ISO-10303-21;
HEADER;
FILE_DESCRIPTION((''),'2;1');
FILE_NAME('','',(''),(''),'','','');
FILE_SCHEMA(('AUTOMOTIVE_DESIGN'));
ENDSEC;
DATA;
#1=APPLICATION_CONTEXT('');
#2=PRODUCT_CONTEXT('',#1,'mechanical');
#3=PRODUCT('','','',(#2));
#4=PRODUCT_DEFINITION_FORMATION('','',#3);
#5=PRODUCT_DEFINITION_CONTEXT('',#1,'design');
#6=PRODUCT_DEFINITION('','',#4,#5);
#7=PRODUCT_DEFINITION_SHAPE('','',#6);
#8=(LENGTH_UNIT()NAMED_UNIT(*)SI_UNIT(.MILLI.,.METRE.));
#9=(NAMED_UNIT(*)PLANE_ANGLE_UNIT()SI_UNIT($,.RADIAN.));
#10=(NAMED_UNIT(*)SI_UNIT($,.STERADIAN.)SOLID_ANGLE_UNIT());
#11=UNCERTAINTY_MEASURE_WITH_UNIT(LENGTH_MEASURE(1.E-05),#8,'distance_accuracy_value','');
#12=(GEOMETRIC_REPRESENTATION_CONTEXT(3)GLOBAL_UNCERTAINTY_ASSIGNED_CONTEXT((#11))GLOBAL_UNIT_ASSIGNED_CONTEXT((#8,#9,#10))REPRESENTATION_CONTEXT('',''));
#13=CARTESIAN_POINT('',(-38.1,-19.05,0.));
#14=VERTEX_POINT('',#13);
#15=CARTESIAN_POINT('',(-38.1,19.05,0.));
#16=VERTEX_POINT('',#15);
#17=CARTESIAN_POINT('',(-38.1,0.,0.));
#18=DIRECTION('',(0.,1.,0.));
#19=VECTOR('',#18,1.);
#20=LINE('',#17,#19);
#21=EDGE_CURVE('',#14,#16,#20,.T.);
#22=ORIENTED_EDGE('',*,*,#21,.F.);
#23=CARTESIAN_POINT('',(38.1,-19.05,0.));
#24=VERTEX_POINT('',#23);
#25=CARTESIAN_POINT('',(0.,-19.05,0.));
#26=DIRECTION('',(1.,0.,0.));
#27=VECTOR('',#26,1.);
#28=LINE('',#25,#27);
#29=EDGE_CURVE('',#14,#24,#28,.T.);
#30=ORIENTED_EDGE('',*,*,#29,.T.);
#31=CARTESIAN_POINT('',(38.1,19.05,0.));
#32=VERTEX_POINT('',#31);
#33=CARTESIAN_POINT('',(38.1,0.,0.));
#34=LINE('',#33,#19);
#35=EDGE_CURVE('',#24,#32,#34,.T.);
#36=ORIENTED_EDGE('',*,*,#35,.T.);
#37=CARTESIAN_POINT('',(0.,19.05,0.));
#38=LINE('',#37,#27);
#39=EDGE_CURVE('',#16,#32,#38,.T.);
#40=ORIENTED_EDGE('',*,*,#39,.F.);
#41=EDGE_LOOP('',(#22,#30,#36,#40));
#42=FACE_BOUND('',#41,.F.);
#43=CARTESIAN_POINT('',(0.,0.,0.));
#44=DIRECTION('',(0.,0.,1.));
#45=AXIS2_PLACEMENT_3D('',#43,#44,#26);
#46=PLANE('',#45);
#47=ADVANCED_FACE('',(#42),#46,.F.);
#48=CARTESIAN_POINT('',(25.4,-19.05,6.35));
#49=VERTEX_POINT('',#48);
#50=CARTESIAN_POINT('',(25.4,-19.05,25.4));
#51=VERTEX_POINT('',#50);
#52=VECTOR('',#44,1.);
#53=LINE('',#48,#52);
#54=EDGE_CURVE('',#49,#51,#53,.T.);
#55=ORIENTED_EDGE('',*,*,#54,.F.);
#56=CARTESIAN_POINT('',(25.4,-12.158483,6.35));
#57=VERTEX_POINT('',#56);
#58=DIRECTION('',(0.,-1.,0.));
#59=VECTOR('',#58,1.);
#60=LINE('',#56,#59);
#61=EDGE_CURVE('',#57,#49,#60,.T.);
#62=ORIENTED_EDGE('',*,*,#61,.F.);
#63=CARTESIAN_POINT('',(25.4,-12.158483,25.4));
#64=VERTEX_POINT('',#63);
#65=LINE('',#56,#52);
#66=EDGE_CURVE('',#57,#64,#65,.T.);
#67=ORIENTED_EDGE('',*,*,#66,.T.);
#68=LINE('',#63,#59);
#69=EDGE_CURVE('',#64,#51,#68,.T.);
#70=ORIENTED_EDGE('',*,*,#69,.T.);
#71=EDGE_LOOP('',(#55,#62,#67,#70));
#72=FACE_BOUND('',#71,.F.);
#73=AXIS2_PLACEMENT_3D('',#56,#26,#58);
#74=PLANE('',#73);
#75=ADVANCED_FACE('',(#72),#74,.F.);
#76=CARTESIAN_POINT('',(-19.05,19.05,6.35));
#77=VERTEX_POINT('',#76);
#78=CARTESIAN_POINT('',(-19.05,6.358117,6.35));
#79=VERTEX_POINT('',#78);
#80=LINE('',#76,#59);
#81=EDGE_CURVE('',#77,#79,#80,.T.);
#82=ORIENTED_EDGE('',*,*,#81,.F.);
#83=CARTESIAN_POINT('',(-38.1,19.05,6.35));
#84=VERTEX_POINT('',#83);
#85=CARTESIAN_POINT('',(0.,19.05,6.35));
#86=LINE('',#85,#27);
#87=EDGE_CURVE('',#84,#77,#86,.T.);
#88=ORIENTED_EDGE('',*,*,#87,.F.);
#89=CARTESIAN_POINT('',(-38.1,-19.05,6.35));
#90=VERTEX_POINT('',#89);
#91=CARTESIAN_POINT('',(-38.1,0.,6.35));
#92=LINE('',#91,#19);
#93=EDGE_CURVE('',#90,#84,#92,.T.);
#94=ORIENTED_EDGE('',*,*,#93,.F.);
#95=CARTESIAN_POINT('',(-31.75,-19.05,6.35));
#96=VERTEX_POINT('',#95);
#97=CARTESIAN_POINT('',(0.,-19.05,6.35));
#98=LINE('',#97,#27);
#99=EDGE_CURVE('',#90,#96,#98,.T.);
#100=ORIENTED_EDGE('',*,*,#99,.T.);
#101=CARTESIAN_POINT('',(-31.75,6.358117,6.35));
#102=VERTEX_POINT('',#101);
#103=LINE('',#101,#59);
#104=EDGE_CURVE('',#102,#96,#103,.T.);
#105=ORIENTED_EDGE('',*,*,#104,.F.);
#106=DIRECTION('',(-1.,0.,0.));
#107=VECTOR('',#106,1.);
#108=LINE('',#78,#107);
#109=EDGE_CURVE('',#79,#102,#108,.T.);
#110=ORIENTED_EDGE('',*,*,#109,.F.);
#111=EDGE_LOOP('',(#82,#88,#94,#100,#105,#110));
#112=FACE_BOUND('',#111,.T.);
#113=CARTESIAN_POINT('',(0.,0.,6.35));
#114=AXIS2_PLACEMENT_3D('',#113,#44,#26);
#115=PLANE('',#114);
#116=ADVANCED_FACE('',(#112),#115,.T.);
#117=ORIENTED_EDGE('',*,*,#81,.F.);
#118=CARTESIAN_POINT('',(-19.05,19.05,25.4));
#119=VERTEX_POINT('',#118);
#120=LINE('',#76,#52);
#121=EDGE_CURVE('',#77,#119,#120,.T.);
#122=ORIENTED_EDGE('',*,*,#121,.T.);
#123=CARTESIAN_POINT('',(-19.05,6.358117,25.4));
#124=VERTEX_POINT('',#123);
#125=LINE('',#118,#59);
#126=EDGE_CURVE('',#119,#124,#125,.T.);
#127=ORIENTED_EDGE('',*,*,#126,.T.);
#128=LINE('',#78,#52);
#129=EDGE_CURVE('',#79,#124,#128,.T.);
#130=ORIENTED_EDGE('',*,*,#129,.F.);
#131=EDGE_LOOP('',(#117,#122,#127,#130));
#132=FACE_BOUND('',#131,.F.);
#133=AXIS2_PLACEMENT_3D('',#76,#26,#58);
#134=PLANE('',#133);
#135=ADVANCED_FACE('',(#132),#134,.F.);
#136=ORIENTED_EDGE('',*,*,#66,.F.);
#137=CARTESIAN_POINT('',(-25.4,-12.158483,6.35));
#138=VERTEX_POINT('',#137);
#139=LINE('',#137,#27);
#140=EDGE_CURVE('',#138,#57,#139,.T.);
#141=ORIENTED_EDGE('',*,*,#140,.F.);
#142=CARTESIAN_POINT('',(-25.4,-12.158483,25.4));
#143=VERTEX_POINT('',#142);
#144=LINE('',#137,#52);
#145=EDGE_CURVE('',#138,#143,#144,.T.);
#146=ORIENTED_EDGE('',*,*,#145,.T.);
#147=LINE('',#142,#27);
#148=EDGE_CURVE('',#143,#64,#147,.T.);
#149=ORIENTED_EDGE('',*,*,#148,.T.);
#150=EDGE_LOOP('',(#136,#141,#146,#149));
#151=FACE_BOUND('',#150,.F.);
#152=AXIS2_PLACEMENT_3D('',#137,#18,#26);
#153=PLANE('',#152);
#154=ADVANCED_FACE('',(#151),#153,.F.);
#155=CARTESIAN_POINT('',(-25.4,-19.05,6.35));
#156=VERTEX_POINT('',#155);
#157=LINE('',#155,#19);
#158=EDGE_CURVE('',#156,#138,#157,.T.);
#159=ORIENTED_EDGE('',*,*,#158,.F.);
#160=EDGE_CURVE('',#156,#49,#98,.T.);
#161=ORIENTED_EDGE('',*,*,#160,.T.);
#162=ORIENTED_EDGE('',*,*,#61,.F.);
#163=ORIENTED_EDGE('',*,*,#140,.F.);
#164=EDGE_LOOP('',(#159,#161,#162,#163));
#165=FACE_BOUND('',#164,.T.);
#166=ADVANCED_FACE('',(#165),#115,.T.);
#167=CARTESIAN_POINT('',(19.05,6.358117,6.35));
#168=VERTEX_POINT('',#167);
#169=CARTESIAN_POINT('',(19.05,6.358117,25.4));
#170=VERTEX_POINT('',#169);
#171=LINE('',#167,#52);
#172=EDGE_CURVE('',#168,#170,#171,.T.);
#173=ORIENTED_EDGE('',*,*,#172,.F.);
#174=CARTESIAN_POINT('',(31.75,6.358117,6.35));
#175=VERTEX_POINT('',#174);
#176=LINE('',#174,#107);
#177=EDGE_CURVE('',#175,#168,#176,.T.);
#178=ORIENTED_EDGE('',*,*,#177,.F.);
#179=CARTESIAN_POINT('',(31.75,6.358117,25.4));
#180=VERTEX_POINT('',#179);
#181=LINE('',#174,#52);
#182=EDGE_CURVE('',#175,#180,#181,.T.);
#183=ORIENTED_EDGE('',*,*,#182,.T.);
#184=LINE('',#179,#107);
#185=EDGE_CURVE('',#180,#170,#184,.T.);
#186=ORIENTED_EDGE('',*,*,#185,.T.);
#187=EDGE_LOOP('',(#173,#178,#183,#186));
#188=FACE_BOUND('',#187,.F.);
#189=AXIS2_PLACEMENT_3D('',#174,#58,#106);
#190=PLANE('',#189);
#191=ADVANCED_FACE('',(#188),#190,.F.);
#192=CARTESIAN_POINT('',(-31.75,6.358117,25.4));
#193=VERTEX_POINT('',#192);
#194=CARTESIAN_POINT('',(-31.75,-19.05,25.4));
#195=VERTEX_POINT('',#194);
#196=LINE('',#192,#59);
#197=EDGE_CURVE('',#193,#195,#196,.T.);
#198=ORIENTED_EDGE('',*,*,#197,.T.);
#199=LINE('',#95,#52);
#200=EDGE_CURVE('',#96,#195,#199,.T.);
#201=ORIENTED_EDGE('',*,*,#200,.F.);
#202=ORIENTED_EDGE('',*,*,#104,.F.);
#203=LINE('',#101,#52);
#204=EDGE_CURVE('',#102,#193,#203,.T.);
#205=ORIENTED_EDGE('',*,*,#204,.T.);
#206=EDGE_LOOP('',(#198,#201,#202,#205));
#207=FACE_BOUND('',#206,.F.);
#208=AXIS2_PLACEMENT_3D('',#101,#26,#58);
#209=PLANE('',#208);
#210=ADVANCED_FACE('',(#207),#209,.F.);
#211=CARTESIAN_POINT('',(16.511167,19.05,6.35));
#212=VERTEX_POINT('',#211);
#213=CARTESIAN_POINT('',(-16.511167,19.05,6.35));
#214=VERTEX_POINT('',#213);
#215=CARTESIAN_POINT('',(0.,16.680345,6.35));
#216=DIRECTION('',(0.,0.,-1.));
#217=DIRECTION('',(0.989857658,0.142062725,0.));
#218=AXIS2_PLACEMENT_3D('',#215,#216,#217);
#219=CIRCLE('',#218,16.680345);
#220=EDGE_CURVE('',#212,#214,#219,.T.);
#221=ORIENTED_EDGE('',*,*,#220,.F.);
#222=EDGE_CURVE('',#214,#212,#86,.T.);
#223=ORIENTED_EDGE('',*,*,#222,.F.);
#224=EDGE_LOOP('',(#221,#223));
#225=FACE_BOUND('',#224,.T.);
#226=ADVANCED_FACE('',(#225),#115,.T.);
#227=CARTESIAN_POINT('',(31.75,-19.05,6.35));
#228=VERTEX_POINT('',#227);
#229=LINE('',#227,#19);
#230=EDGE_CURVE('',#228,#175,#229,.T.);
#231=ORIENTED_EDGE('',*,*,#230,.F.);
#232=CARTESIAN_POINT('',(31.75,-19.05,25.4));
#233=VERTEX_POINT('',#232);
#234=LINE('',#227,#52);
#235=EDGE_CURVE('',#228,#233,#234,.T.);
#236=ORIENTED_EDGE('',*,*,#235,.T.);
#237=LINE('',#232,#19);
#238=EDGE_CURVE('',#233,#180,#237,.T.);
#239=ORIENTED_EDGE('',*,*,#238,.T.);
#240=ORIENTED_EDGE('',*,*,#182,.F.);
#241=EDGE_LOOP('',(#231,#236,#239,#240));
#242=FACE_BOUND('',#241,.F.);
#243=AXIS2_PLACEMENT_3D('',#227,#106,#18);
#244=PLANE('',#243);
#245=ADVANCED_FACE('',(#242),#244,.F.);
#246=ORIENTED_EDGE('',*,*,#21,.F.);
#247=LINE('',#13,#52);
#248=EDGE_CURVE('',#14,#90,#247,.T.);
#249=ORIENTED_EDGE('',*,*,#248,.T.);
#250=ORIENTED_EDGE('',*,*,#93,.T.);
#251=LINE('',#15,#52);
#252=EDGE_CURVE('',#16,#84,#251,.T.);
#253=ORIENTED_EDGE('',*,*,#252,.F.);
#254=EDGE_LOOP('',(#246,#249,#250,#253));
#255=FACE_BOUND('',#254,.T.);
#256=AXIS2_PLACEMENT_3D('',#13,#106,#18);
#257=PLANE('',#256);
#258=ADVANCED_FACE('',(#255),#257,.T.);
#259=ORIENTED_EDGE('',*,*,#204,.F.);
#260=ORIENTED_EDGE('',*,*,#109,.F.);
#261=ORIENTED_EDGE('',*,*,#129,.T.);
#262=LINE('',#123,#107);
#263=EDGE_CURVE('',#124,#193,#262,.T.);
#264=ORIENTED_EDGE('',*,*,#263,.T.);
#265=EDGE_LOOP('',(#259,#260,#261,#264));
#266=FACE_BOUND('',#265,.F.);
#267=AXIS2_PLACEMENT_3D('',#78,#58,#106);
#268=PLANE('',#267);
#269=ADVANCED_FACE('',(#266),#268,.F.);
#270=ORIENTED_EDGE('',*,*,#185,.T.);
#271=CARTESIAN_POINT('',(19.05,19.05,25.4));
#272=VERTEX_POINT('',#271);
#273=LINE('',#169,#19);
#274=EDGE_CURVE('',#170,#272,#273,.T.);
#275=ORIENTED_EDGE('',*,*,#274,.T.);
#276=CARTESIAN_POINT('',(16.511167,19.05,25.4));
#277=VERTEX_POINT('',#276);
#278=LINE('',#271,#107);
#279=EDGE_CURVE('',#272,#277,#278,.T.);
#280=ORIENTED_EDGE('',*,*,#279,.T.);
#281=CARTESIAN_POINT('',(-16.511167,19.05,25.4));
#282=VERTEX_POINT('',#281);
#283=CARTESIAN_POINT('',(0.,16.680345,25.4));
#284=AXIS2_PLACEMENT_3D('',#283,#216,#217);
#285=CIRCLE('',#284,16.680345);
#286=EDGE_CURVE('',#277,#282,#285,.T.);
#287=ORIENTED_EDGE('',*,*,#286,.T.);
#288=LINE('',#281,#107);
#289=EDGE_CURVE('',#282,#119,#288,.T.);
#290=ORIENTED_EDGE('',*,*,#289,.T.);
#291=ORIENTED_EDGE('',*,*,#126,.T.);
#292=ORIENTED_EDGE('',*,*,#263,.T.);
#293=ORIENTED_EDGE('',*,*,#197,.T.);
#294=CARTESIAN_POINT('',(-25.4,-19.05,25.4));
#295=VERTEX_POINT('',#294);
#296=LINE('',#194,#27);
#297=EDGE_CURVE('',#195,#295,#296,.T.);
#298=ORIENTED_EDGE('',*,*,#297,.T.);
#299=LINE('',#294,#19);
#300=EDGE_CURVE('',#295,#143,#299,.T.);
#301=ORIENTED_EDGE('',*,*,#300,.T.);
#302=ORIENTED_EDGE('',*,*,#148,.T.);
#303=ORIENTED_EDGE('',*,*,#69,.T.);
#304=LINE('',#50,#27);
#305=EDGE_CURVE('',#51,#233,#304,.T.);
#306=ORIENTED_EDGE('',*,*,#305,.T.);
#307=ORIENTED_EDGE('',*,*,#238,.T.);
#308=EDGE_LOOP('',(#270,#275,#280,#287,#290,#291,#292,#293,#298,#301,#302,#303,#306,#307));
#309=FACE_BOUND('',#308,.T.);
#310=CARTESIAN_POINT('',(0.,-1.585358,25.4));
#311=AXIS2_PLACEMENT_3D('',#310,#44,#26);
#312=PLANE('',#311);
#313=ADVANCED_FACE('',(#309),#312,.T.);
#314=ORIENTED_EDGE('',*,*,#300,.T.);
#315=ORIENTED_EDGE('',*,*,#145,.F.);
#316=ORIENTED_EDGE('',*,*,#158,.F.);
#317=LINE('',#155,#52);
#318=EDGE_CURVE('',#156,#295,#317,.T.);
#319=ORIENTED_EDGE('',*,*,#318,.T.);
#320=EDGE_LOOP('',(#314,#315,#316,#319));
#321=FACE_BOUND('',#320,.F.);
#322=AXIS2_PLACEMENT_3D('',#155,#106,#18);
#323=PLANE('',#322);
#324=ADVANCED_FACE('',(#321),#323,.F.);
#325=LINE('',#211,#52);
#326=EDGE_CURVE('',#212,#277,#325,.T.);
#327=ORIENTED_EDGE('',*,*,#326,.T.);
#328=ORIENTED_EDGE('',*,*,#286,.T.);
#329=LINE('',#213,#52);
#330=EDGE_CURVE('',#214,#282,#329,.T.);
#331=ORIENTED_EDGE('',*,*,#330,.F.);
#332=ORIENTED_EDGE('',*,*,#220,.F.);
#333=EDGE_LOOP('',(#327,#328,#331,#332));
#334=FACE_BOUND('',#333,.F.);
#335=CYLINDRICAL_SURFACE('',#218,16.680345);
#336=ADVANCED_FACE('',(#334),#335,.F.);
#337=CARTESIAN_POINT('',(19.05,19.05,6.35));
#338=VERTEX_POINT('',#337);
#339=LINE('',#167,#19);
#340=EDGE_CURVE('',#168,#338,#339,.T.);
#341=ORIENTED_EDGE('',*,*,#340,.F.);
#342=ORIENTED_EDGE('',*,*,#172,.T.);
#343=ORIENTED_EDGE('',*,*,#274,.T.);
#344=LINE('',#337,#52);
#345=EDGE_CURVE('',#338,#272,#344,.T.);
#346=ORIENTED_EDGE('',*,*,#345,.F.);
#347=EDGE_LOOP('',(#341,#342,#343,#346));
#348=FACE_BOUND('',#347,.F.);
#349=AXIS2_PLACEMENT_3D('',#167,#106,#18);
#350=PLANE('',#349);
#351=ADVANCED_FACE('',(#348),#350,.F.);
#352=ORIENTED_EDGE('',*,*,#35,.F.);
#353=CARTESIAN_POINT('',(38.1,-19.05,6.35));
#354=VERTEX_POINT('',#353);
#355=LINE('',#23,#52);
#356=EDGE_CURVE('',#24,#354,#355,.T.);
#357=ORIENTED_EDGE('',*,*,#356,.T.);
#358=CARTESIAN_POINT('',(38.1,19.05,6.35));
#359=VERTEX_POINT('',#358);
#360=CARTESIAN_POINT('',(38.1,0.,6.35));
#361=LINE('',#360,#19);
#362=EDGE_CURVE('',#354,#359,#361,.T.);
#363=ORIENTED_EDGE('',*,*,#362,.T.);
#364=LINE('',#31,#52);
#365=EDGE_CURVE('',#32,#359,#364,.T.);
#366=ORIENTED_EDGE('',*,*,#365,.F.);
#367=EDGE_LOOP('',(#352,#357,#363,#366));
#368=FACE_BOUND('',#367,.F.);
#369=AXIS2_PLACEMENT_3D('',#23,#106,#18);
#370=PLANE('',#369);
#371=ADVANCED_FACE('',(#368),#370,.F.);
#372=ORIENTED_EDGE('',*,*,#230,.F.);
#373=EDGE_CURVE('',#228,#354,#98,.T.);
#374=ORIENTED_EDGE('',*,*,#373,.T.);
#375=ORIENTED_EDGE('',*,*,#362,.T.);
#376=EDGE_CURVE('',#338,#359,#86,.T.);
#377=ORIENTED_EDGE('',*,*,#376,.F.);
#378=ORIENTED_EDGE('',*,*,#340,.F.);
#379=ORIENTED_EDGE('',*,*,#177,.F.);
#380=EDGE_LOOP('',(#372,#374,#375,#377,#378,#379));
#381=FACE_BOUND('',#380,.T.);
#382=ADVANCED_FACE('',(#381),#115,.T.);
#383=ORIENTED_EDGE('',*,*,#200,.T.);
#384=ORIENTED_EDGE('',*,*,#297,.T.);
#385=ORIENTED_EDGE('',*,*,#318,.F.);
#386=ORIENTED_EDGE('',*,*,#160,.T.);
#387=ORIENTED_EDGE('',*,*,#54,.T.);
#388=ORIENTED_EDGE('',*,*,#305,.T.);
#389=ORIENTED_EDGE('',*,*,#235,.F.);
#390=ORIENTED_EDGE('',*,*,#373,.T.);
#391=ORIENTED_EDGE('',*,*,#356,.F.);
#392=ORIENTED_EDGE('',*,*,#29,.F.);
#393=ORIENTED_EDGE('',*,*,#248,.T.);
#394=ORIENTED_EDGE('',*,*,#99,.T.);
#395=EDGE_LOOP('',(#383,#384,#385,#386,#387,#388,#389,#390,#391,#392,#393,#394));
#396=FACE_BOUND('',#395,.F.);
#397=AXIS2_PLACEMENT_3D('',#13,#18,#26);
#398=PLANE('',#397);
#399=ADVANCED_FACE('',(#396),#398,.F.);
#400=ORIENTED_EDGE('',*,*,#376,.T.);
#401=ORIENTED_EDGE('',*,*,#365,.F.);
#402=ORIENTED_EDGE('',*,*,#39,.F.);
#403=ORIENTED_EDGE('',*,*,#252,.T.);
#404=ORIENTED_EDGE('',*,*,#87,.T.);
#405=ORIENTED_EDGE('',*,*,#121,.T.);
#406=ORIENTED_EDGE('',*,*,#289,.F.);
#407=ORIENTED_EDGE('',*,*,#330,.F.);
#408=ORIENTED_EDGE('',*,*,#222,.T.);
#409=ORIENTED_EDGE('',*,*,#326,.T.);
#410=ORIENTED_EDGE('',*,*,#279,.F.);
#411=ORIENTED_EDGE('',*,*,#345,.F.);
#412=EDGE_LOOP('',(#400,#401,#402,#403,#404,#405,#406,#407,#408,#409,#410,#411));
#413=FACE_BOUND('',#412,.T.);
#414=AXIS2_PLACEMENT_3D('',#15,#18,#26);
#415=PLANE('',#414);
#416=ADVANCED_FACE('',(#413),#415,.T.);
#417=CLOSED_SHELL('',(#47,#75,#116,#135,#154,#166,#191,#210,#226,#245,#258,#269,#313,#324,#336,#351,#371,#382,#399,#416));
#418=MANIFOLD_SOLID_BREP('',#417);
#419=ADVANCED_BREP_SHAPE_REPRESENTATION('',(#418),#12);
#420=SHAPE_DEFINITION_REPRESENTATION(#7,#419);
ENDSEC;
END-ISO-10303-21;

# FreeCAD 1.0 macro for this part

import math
import FreeCAD as App
import Part
import Sketcher

V = App.Vector
Q = App.Units.Quantity


def add_polygon(sketch, points):
    """Adds a closed chain of lines whose ends are joined by coincident constraints."""
    first, n = sketch.GeometryCount, len(points)
    for a, b in zip(points, points[1:] + points[:1]):
        sketch.addGeometry(Part.LineSegment(App.Vector(*a, 0), App.Vector(*b, 0)), False)
    for i in range(n):
        sketch.addConstraint(Sketcher.Constraint("Coincident", first + i, 2, first + (i + 1) % n, 1))

doc = App.newDocument("Part")
body = doc.addObject("PartDesign::Body", "Body")

# Sketch on XY plane
sketch1 = body.newObject("Sketcher::SketchObject", "Sketch")
sketch1.AttachmentSupport = (doc.getObject("XY_Plane"), [""])
sketch1.MapMode = "FlatFace"
add_polygon(sketch1, [(-38, 19), (-38, -19), (38, -19), (38, 19)])  # lines 0-3
sketch1.addConstraint([
    Sketcher.Constraint("Vertical", 0),
    Sketcher.Constraint("Horizontal", 1),
    Sketcher.Constraint("Vertical", 2),
    Sketcher.Constraint("Horizontal", 3),
    Sketcher.Constraint("Symmetric", 0, 2, 2, 2, -1, 1),
    Sketcher.Constraint("DistanceX", 1, 1, 1, 2, Q("3 in")),
    Sketcher.Constraint("DistanceY", 0, 2, 0, 1, Q("1.5 in")),
])
pad1 = body.newObject("PartDesign::Pad", "Pad")
pad1.Profile = sketch1
pad1.Length = Q("0.25 in")

# Sketch on XY plane
sketch2 = body.newObject("Sketcher::SketchObject", "Sketch001")
sketch2.AttachmentSupport = (doc.getObject("XY_Plane"), [""])
sketch2.MapMode = "FlatFace"
sketch2.AttachmentOffset = App.Placement(V(0, 0, 0.25 * 25.4), App.Rotation())
sketch2.addGeometry([
    Part.LineSegment(V(-25.4, -12.2, 0), V(25.4, -12.2, 0)),  # 0
    Part.LineSegment(V(25.4, -12.2, 0), V(25.4, -19.1, 0)),  # 1
    Part.LineSegment(V(25.4, -19.1, 0), V(31.8, -19.1, 0)),  # 2
    Part.LineSegment(V(31.8, -19.1, 0), V(31.8, 6.4, 0)),  # 3
    Part.LineSegment(V(31.8, 6.4, 0), V(19.1, 6.4, 0)),  # 4
    Part.LineSegment(V(19.1, 6.4, 0), V(19.1, 19.1, 0)),  # 5
    Part.LineSegment(V(19.1, 19.1, 0), V(16.5, 19.1, 0)),  # 6
    Part.ArcOfCircle(Part.Circle(V(0, 16.7, 0), V(0, 0, 1), 16.7), math.radians(172), math.radians(368)),  # 7
    Part.LineSegment(V(-16.5, 19.1, 0), V(-19.1, 19.1, 0)),  # 8
    Part.LineSegment(V(-19.1, 19.1, 0), V(-19.1, 6.4, 0)),  # 9
    Part.LineSegment(V(-19.1, 6.4, 0), V(-31.8, 6.4, 0)),  # 10
    Part.LineSegment(V(-31.8, 6.4, 0), V(-31.8, -19.1, 0)),  # 11
    Part.LineSegment(V(-31.8, -19.1, 0), V(-25.4, -19.1, 0)),  # 12
    Part.LineSegment(V(-25.4, -19.1, 0), V(-25.4, -12.2, 0)),  # 13
], False)
sketch2.addConstraint([
    Sketcher.Constraint("Coincident", 0, 2, 1, 1),
    Sketcher.Constraint("Coincident", 1, 2, 2, 1),
    Sketcher.Constraint("Coincident", 2, 2, 3, 1),
    Sketcher.Constraint("Coincident", 3, 2, 4, 1),
    Sketcher.Constraint("Coincident", 4, 2, 5, 1),
    Sketcher.Constraint("Coincident", 5, 2, 6, 1),
    Sketcher.Constraint("Coincident", 6, 2, 7, 2),
    Sketcher.Constraint("Coincident", 7, 1, 8, 1),
    Sketcher.Constraint("Coincident", 8, 2, 9, 1),
    Sketcher.Constraint("Coincident", 9, 2, 10, 1),
    Sketcher.Constraint("Coincident", 10, 2, 11, 1),
    Sketcher.Constraint("Coincident", 11, 2, 12, 1),
    Sketcher.Constraint("Coincident", 12, 2, 13, 1),
    Sketcher.Constraint("Coincident", 13, 2, 0, 1),
    Sketcher.Constraint("Horizontal", 0),
    Sketcher.Constraint("Vertical", 1),
    Sketcher.Constraint("Horizontal", 2),
    Sketcher.Constraint("Vertical", 3),
    Sketcher.Constraint("Horizontal", 4),
    Sketcher.Constraint("Vertical", 5),
    Sketcher.Constraint("Horizontal", 6),
    Sketcher.Constraint("Horizontal", 8),
    Sketcher.Constraint("Vertical", 9),
    Sketcher.Constraint("Horizontal", 10),
    Sketcher.Constraint("Vertical", 11),
    Sketcher.Constraint("Horizontal", 12),
    Sketcher.Constraint("Vertical", 13),
    Sketcher.Constraint("Symmetric", 6, 2, 7, 1, -2),
    Sketcher.Constraint("Symmetric", 4, 2, 9, 2, -2),
    Sketcher.Constraint("Symmetric", 2, 2, 11, 2, -2),
    Sketcher.Constraint("Equal", 2, 12),
    Sketcher.Constraint("DistanceX", 0, 1, 0, 2, Q("2 in")),
    Sketcher.Constraint("DistanceX", 4, 2, 4, 1, Q("0.5 in")),
    Sketcher.Constraint("DistanceX", 2, 1, 2, 2, Q("0.25 in")),
    Sketcher.Constraint("DistanceY", 1, 2, 5, 2, Q("1.5 in")),
    Sketcher.Constraint("DistanceY", 1, 2, -1, 1, Q("0.75 in")),
    Sketcher.Constraint("DistanceY", 0, 2, 3, 2, Q("0.729 in")),
    Sketcher.Constraint("Radius", 7, 16.680345),
    Sketcher.Constraint("DistanceX", 6, 2, 6, 1, 2.538833),
    Sketcher.Constraint("DistanceY", 1, 2, 1, 1, 6.891517),
])
pad2 = body.newObject("PartDesign::Pad", "Pad001")
pad2.Profile = sketch2
pad2.Length = Q("0.75 in")

doc.recompute()
